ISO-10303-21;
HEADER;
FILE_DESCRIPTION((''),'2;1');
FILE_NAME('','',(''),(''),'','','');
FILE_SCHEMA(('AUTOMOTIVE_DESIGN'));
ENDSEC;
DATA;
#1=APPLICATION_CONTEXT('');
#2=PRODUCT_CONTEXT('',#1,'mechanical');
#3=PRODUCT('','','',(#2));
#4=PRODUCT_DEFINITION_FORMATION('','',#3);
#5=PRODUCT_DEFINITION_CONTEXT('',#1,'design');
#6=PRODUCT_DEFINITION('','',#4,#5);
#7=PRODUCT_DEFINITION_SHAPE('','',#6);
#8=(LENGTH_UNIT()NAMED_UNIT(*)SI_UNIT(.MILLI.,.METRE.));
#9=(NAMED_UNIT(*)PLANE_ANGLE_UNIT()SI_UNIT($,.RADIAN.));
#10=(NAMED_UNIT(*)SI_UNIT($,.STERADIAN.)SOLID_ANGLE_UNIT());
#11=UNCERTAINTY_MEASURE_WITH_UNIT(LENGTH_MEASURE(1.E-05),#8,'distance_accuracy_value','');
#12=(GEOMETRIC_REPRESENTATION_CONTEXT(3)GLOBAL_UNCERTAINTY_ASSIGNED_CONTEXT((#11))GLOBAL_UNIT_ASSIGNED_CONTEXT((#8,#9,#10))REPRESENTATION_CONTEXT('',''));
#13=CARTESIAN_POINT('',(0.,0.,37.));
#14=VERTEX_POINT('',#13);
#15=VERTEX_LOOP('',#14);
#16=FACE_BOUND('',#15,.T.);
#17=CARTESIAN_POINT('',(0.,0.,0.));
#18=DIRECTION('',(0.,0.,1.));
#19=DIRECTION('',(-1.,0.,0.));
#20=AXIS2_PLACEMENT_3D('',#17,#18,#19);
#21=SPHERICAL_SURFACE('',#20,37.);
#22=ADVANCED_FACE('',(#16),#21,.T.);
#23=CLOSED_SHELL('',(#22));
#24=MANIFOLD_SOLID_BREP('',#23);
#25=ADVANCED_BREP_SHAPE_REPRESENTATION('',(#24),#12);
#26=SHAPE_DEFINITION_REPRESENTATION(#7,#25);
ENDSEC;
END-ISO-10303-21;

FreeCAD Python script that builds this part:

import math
import FreeCAD as App
import Part
import Sketcher

doc = App.newDocument("Part")
body = doc.addObject("PartDesign::Body", "Body")

sketch1 = doc.addObject("Sketcher::SketchObject", "Sketch")
body.addObject(sketch1)
sketch1.AttachmentSupport = (doc.XZ_Plane, [""])
sketch1.MapMode = "FlatFace"
sketch1.addGeometry(Part.LineSegment(App.Vector(0, 37, 0), App.Vector(0, -37, 0)), False)
sketch1.addGeometry(Part.ArcOfCircle(Part.Circle(App.Vector(0, 0, 0), App.Vector(0, 0, 1), 37), math.radians(90), math.radians(270)), False)
sketch1.addConstraint(Sketcher.Constraint("Coincident", 0, 1, 1, 1))
sketch1.addConstraint(Sketcher.Constraint("Coincident", 1, 2, 0, 2))
sketch1.addConstraint(Sketcher.Constraint("Vertical", 0))
sketch1.addConstraint(Sketcher.Constraint("Coincident", 1, 3, -1, 1))
sketch1.addConstraint(Sketcher.Constraint("PointOnObject", 0, 1, -2))
sketch1.addConstraint(Sketcher.Constraint("Radius", 1, 37.0))
revolution = doc.addObject("PartDesign::Revolution", "Revolution")
body.addObject(revolution)
revolution.Profile = sketch1
revolution.ReferenceAxis = (sketch1, ["V_Axis"])
revolution.Angle = 360

doc.recompute()
